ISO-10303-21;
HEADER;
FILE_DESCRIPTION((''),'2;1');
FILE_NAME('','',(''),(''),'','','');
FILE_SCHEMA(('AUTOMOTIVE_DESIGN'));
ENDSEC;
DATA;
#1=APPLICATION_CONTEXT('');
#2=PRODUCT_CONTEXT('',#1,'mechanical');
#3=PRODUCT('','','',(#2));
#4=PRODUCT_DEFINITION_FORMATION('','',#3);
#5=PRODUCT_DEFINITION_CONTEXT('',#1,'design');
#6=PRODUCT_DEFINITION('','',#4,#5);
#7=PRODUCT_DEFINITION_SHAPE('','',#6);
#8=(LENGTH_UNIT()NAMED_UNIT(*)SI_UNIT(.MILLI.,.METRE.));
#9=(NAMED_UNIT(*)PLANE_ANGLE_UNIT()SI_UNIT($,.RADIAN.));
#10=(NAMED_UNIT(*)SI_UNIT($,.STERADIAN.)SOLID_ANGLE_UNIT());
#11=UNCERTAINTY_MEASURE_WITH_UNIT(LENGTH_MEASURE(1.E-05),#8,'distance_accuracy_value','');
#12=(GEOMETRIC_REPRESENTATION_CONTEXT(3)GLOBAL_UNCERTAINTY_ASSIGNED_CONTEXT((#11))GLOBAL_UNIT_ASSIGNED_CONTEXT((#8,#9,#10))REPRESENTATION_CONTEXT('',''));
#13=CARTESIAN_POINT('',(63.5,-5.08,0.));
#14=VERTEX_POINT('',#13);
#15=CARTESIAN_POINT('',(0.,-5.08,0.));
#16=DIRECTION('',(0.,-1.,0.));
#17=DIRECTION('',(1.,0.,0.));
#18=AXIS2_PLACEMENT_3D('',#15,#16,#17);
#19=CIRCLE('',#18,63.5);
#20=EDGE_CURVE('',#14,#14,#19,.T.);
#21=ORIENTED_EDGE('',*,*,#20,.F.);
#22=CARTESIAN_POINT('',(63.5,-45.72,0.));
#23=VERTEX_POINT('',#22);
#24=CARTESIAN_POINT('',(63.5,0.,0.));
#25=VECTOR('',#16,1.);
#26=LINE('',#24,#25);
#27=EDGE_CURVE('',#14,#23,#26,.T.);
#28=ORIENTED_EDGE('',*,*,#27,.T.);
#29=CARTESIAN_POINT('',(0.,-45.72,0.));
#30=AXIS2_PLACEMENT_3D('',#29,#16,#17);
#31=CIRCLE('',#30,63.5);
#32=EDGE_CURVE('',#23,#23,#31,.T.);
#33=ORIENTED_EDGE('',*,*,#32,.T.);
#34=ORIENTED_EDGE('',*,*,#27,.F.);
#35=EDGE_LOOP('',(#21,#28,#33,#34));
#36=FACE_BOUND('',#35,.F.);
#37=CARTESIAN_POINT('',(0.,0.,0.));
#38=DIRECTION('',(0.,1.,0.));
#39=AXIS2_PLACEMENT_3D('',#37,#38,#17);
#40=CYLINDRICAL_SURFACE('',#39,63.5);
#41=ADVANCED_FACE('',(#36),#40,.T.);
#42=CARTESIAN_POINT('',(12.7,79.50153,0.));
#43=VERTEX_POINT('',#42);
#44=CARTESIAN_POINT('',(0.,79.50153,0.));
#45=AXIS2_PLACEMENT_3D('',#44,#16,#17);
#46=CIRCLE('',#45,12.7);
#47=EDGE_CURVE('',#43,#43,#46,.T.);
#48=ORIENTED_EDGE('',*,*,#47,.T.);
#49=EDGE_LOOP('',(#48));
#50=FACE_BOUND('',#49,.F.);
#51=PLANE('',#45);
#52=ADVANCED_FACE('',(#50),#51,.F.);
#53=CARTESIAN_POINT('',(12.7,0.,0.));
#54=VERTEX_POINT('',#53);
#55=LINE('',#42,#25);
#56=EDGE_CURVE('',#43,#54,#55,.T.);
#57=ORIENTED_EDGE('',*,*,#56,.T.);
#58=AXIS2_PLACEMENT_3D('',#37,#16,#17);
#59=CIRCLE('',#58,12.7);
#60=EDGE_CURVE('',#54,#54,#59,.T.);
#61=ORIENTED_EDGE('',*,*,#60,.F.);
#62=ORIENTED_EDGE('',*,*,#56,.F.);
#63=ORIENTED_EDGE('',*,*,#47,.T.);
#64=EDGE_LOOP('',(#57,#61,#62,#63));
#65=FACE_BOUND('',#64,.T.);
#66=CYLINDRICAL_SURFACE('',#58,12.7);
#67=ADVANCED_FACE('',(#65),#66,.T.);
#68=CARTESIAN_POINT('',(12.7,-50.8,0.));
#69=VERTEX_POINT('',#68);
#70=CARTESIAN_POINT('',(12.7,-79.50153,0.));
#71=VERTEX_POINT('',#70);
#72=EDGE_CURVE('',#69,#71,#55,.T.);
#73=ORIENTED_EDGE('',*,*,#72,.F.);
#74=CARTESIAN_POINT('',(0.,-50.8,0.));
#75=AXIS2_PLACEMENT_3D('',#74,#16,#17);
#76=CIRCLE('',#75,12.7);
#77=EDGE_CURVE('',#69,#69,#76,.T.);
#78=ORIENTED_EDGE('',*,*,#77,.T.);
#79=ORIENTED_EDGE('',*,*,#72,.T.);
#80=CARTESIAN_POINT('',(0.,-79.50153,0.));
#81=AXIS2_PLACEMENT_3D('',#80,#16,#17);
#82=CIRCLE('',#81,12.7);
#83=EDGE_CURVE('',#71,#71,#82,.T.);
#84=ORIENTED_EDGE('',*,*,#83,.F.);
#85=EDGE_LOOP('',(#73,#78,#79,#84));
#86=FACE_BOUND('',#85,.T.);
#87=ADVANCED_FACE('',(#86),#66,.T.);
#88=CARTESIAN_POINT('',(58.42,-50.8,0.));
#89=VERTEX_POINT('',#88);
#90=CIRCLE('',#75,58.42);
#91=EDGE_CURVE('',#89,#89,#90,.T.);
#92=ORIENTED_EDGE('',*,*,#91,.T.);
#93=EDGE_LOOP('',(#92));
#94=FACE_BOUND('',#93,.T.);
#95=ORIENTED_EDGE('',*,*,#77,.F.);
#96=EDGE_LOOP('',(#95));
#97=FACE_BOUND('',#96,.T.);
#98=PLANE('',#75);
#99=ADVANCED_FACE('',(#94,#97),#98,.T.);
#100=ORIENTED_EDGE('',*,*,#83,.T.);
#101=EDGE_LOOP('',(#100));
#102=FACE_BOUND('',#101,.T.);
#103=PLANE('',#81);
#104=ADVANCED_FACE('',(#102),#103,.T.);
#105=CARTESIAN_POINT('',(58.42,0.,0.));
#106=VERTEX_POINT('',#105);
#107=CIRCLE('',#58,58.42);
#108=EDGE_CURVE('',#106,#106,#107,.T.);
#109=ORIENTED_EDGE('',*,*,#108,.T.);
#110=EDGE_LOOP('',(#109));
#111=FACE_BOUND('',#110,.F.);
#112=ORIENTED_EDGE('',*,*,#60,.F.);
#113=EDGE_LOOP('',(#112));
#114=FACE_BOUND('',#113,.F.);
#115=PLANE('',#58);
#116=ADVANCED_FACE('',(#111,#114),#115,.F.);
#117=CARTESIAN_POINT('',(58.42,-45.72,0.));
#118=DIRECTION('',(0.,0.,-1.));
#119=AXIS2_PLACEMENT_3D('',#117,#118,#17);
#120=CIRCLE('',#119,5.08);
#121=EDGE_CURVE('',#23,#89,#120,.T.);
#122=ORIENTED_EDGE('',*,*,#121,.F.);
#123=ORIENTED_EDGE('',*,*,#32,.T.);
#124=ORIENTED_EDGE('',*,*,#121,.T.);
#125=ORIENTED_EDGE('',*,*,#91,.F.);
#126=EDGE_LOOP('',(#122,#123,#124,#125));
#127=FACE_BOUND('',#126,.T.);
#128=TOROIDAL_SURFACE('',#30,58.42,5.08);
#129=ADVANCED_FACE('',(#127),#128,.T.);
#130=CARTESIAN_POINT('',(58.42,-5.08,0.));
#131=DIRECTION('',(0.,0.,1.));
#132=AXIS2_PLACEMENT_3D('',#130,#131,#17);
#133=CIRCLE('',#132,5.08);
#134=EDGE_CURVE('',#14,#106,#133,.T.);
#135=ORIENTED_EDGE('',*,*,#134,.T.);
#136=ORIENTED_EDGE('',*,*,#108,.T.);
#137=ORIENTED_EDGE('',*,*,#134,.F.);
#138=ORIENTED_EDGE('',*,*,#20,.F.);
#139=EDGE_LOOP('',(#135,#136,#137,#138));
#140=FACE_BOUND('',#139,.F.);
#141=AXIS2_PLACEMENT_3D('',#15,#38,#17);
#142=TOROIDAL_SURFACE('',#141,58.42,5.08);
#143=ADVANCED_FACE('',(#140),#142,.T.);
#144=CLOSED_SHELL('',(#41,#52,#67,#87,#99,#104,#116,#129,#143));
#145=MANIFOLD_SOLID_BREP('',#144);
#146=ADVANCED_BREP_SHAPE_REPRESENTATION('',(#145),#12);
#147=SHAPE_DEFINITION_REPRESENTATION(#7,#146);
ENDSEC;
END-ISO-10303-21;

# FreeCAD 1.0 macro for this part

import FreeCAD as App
import Part
import Sketcher
Q = App.Units.Quantity


def edges_at(feature, points):
    """Names of the edges that pass closest to the given points."""
    edges = feature.Shape.Edges
    near = lambda p: min(range(len(edges)), key=lambda i: edges[i].distToShape(Part.Vertex(*p))[0])
    return sorted({f"Edge{near(p) + 1}" for p in points})

doc = App.newDocument("Part")
body = doc.addObject("PartDesign::Body", "Body")

# Sketch on XZ plane
sketch1 = body.newObject("Sketcher::SketchObject", "Sketch")
sketch1.AttachmentSupport = (doc.getObject("XZ_Plane"), [""])
sketch1.MapMode = "FlatFace"
sketch1.addGeometry(Part.Circle(App.Vector(0, 0, 0), App.Vector(0, 0, 1), 64), False)
sketch1.addConstraint(Sketcher.Constraint("Coincident", 0, 3, -1, 1))
sketch1.addConstraint(Sketcher.Constraint("Diameter", 0, Q("5 in")))
pad1 = body.newObject("PartDesign::Pad", "Pad")
pad1.Profile = sketch1
pad1.Length = Q("2 in")

# Sketch on XZ plane
sketch2 = body.newObject("Sketcher::SketchObject", "Sketch001")
sketch2.AttachmentSupport = (doc.getObject("XZ_Plane"), [""])
sketch2.MapMode = "FlatFace"
sketch2.addGeometry(Part.Circle(App.Vector(0, 0, 0), App.Vector(0, 0, 1), 13), False)
sketch2.addConstraint(Sketcher.Constraint("Coincident", 0, 3, -1, 1))
sketch2.addConstraint(Sketcher.Constraint("Diameter", 0, Q("1 in")))
pocket1 = body.newObject("PartDesign::Pocket", "Pocket")
pocket1.Profile = sketch2
pocket1.Length = Q("2 in")
pocket1.Reversed = True

# Sketch on XZ plane
sketch3 = body.newObject("Sketcher::SketchObject", "Sketch002")
sketch3.AttachmentSupport = (doc.getObject("XZ_Plane"), [""])
sketch3.MapMode = "FlatFace"
sketch3.addGeometry(Part.Circle(App.Vector(0, 0, 0), App.Vector(0, 0, 1), 13), False)
sketch3.addConstraint(Sketcher.Constraint("Coincident", 0, 3, -1, 1))
sketch3.addConstraint(Sketcher.Constraint("Diameter", 0, Q("1 in")))
pad2 = body.newObject("PartDesign::Pad", "Pad001")
pad2.Profile = sketch3
pad2.Length = 159.00306
pad2.Midplane = True
doc.recompute()

fillet = body.newObject("PartDesign::Fillet", "Fillet")
fillet.Base = (pad2, edges_at(pad2, [(-63.5, -50.8, 0)]))
fillet.Radius = Q("0.2 in")
doc.recompute()

fillet2 = body.newObject("PartDesign::Fillet", "Fillet001")
fillet2.Base = (fillet, edges_at(fillet, [(-63.5, 0, 0)]))
fillet2.Radius = Q("0.2 in")

doc.recompute()
